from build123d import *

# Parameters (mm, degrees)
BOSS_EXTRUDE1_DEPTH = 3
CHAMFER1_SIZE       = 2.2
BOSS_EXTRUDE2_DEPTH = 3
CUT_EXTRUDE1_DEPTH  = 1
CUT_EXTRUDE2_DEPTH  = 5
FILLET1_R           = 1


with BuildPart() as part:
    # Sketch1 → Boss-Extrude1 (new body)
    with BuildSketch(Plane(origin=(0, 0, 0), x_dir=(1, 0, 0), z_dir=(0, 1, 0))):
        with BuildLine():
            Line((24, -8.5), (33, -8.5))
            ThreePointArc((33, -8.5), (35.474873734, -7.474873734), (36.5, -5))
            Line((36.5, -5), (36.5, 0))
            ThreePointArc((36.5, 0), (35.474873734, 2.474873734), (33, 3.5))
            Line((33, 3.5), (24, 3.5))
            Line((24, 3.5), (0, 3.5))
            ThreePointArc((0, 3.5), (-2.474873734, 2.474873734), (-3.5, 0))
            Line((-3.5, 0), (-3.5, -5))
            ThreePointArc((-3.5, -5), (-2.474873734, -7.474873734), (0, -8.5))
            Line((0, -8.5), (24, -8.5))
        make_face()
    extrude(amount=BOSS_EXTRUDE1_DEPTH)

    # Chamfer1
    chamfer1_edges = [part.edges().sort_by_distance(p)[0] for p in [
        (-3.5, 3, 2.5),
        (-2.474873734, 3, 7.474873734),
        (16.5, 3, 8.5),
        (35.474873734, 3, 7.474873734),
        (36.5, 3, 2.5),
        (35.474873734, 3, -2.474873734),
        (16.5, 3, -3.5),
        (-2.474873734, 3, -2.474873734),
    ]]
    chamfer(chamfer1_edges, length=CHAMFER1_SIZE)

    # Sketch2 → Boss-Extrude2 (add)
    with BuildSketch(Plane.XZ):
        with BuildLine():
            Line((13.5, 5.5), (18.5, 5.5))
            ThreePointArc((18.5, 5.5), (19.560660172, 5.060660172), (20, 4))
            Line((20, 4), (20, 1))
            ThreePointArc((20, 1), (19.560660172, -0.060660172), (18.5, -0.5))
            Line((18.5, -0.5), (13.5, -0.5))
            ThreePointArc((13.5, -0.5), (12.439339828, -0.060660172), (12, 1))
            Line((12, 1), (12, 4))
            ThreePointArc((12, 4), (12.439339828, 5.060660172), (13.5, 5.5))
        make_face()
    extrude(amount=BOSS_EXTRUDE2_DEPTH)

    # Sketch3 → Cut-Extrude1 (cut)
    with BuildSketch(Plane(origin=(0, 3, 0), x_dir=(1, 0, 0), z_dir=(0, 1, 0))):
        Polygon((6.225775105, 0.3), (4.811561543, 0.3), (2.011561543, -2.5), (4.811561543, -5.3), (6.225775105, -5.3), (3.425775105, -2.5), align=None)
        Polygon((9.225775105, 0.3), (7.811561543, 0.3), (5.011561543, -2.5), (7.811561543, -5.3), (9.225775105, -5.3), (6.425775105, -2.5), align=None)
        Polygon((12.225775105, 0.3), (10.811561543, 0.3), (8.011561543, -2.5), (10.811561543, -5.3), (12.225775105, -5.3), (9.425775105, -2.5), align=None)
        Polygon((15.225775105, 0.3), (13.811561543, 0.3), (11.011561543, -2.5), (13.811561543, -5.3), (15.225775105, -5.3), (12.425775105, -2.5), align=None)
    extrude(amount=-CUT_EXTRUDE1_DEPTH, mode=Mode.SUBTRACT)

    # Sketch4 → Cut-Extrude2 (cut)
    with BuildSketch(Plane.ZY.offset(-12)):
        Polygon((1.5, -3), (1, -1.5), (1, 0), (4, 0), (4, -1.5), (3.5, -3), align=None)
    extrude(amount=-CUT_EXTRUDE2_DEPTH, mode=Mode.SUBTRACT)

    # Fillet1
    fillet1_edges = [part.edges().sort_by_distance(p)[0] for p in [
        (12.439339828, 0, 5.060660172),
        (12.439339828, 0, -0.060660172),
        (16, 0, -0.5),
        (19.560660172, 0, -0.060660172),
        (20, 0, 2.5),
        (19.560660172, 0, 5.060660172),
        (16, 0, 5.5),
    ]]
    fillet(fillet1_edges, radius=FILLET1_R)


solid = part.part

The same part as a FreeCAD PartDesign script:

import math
import FreeCAD as App
import Part
import Sketcher
Q = App.Units.Quantity


def edges_at(feature, points):
    """Names of the edges that pass closest to the given points."""
    edges = feature.Shape.Edges
    near = lambda p: min(range(len(edges)), key=lambda i: edges[i].distToShape(Part.Vertex(*p))[0])
    return sorted({f"Edge{near(p) + 1}" for p in points})


def add_polygon(sketch, points):
    """Adds a closed chain of lines whose ends are joined by coincident constraints."""
    first, n = sketch.GeometryCount, len(points)
    for a, b in zip(points, points[1:] + points[:1]):
        sketch.addGeometry(Part.LineSegment(App.Vector(*a, 0), App.Vector(*b, 0)), False)
    for i in range(n):
        sketch.addConstraint(Sketcher.Constraint("Coincident", first + i, 2, first + (i + 1) % n, 1))

doc = App.newDocument("Part")
body = doc.addObject("PartDesign::Body", "Body")

sketch1 = body.newObject("Sketcher::SketchObject", "Sketch")
sketch1.AttachmentSupport = (doc.getObject("XZ_Plane"), [""])
sketch1.MapMode = "FlatFace"
sketch1.addGeometry([
    Part.ArcOfCircle(Part.Circle(App.Vector(33, 5, 0), App.Vector(0, 0, 1), 3.5), math.radians(0), math.radians(90)),
    Part.LineSegment(App.Vector(36.5, 5, 0), App.Vector(36.5, 0, 0)),
    Part.ArcOfCircle(Part.Circle(App.Vector(33, 0, 0), App.Vector(0, 0, 1), 3.5), math.radians(-90), math.radians(0)),
    Part.LineSegment(App.Vector(33, -3.5, 0), App.Vector(0, -3.5, 0)),
    Part.ArcOfCircle(Part.Circle(App.Vector(0, 0, 0), App.Vector(0, 0, 1), 3.5), math.radians(-180), math.radians(-90)),
    Part.LineSegment(App.Vector(-3.5, 0, 0), App.Vector(-3.5, 5, 0)),
    Part.ArcOfCircle(Part.Circle(App.Vector(0, 5, 0), App.Vector(0, 0, 1), 3.5), math.radians(90), math.radians(180)),
    Part.LineSegment(App.Vector(0, 8.5, 0), App.Vector(33, 8.5, 0)),
], False)
sketch1.addConstraint([
    Sketcher.Constraint("Tangent", 0, 1, 1, 1),
    Sketcher.Constraint("Tangent", 1, 2, 2, 2),
    Sketcher.Constraint("Tangent", 2, 1, 3, 1),
    Sketcher.Constraint("Tangent", 3, 2, 4, 2),
    Sketcher.Constraint("Tangent", 4, 1, 5, 1),
    Sketcher.Constraint("Tangent", 5, 2, 6, 2),
    Sketcher.Constraint("Tangent", 6, 1, 7, 1),
    Sketcher.Constraint("Tangent", 7, 2, 0, 2),
    Sketcher.Constraint("Vertical", 1),
    Sketcher.Constraint("Horizontal", 3),
    Sketcher.Constraint("Vertical", 5),
    Sketcher.Constraint("Horizontal", 7),
    Sketcher.Constraint("Coincident", 4, 3, -1, 1),
    Sketcher.Constraint("Equal", 0, 2),
    Sketcher.Constraint("Equal", 2, 4),
    Sketcher.Constraint("Equal", 4, 6),
    Sketcher.Constraint("Radius", 0, Q("3.5 mm")),
    Sketcher.Constraint("DistanceX", 3, 2, 3, 1, Q("33 mm")),
    Sketcher.Constraint("DistanceY", 1, 2, 1, 1, Q("5 mm")),
])
pad1 = body.newObject("PartDesign::Pad", "Pad")
pad1.Profile = sketch1
pad1.Length = 3
pad1.Reversed = True
doc.recompute()

chamfer = body.newObject("PartDesign::Chamfer", "Chamfer")
chamfer.Base = (pad1, edges_at(pad1, [
    (-3.5, 3, 2.5),
    (-2.475, 3, 7.475),
    (16.5, 3, 8.5),
    (35.475, 3, 7.475),
    (36.5, 3, 2.5),
    (35.475, 3, -2.475),
    (16.5, 3, -3.5),
    (-2.475, 3, -2.475),
]))
chamfer.Size = 2.2

sketch2 = body.newObject("Sketcher::SketchObject", "Sketch001")
sketch2.AttachmentSupport = (doc.getObject("XZ_Plane"), [""])
sketch2.MapMode = "FlatFace"
sketch2.addGeometry([
    Part.LineSegment(App.Vector(18.5, 5.5, 0), App.Vector(13.5, 5.5, 0)),
    Part.ArcOfCircle(Part.Circle(App.Vector(13.5, 4, 0), App.Vector(0, 0, 1), 1.5), math.radians(90), math.radians(180)),
    Part.LineSegment(App.Vector(12, 4, 0), App.Vector(12, 1, 0)),
    Part.ArcOfCircle(Part.Circle(App.Vector(13.5, 1, 0), App.Vector(0, 0, 1), 1.5), math.radians(180), math.radians(270)),
    Part.LineSegment(App.Vector(13.5, -0.5, 0), App.Vector(18.5, -0.5, 0)),
    Part.ArcOfCircle(Part.Circle(App.Vector(18.5, 1, 0), App.Vector(0, 0, 1), 1.5), math.radians(-90), math.radians(0)),
    Part.LineSegment(App.Vector(20, 1, 0), App.Vector(20, 4, 0)),
    Part.ArcOfCircle(Part.Circle(App.Vector(18.5, 4, 0), App.Vector(0, 0, 1), 1.5), math.radians(0), math.radians(90)),
], False)
sketch2.addConstraint([
    Sketcher.Constraint("Tangent", 0, 2, 1, 1),
    Sketcher.Constraint("Tangent", 1, 2, 2, 1),
    Sketcher.Constraint("Tangent", 2, 2, 3, 1),
    Sketcher.Constraint("Tangent", 3, 2, 4, 1),
    Sketcher.Constraint("Tangent", 4, 2, 5, 1),
    Sketcher.Constraint("Tangent", 5, 2, 6, 1),
    Sketcher.Constraint("Tangent", 6, 2, 7, 1),
    Sketcher.Constraint("Tangent", 7, 2, 0, 1),
    Sketcher.Constraint("Horizontal", 0),
    Sketcher.Constraint("Vertical", 2),
    Sketcher.Constraint("Horizontal", 4),
    Sketcher.Constraint("Vertical", 6),
    Sketcher.Constraint("Equal", 1, 3),
    Sketcher.Constraint("Equal", 3, 5),
    Sketcher.Constraint("Equal", 5, 7),
    Sketcher.Constraint("Radius", 1, Q("1.5 mm")),
    Sketcher.Constraint("DistanceX", 0, 2, 0, 1, Q("5 mm")),
    Sketcher.Constraint("DistanceY", 2, 2, 2, 1, Q("3 mm")),
    Sketcher.Constraint("DistanceY", -1, 1, 1, 3, Q("4 mm")),
    Sketcher.Constraint("DistanceX", -1, 1, 1, 2, Q("12 mm")),
])
pad2 = body.newObject("PartDesign::Pad", "Pad001")
pad2.Profile = sketch2
pad2.Length = 3

sketch3 = body.newObject("Sketcher::SketchObject", "Sketch002")
sketch3.AttachmentSupport = (doc.getObject("XZ_Plane"), [""])
sketch3.MapMode = "FlatFace"
sketch3.AttachmentOffset = App.Placement(App.Vector(0, 0, -3), App.Rotation())
add_polygon(sketch3, [(6.225775, -0.3), (4.811562, -0.3), (2.011562, 2.5), (4.811562, 5.3), (6.225775, 5.3), (3.425775, 2.5)])
add_polygon(sketch3, [(9.225775, -0.3), (7.811562, -0.3), (5.011562, 2.5), (7.811562, 5.3), (9.225775, 5.3), (6.425775, 2.5)])
add_polygon(sketch3, [(12.225775, -0.3), (10.811562, -0.3), (8.011562, 2.5), (10.811562, 5.3), (12.225775, 5.3), (9.425775, 2.5)])
add_polygon(sketch3, [(15.225775, -0.3), (13.811562, -0.3), (11.011562, 2.5), (13.811562, 5.3), (15.225775, 5.3), (12.425775, 2.5)])
sketch3.addConstraint([
    Sketcher.Constraint("Horizontal", 0),
    Sketcher.Constraint("Horizontal", 3),
    Sketcher.Constraint("Horizontal", 6),
    Sketcher.Constraint("Horizontal", 9),
    Sketcher.Constraint("Horizontal", 12),
    Sketcher.Constraint("Horizontal", 15),
    Sketcher.Constraint("Horizontal", 18),
    Sketcher.Constraint("Horizontal", 21),
    Sketcher.Constraint("Perpendicular", 1, 2),
    Sketcher.Constraint("Parallel", 2, 4),
    Sketcher.Constraint("Perpendicular", 4, 5),
    Sketcher.Constraint("Parallel", 5, 7),
    Sketcher.Constraint("Perpendicular", 7, 8),
    Sketcher.Constraint("Parallel", 8, 10),
    Sketcher.Constraint("Perpendicular", 10, 11),
    Sketcher.Constraint("Parallel", 11, 13),
    Sketcher.Constraint("Perpendicular", 13, 14),
    Sketcher.Constraint("Parallel", 14, 16),
    Sketcher.Constraint("Perpendicular", 16, 17),
    Sketcher.Constraint("Parallel", 17, 19),
    Sketcher.Constraint("Perpendicular", 19, 20),
    Sketcher.Constraint("Parallel", 20, 22),
    Sketcher.Constraint("Perpendicular", 22, 23),
    Sketcher.Constraint("Horizontal", 1, 2, 4, 2),
    Sketcher.Constraint("Horizontal", 5, 2, 6, 2),
    Sketcher.Constraint("Horizontal", 4, 2, 7, 2),
    Sketcher.Constraint("Horizontal", 3, 2, 8, 2),
    Sketcher.Constraint("Horizontal", 7, 2, 10, 2),
    Sketcher.Constraint("Horizontal", 11, 2, 12, 2),
    Sketcher.Constraint("Horizontal", 10, 2, 13, 2),
    Sketcher.Constraint("Horizontal", 9, 2, 14, 2),
    Sketcher.Constraint("Horizontal", 13, 2, 16, 2),
    Sketcher.Constraint("Horizontal", 17, 2, 18, 2),
    Sketcher.Constraint("Horizontal", 16, 2, 19, 2),
    Sketcher.Constraint("Horizontal", 15, 2, 20, 2),
    Sketcher.Constraint("Horizontal", 19, 2, 22, 2),
    Sketcher.Constraint("Vertical", 0, 2, 2, 2),
    Sketcher.Constraint("Equal", 3, 6),
    Sketcher.Constraint("Equal", 9, 12),
    Sketcher.Constraint("Equal", 15, 18),
    Sketcher.Constraint("Equal", 1, 2),
    Sketcher.Constraint("DistanceX", 0, 2, 6, 2, Q("3 mm")),
    Sketcher.Constraint("DistanceX", 6, 2, 12, 2, Q("3 mm")),
    Sketcher.Constraint("DistanceX", 12, 2, 18, 2, Q("3 mm")),
    Sketcher.Constraint("DistanceY", 0, 2, -1, 1, Q("0.3 mm")),
    Sketcher.Constraint("DistanceY", -1, 1, 1, 2, Q("2.5 mm")),
    Sketcher.Constraint("DistanceX", 0, 2, 0, 1, Q("1.414214 mm")),
    Sketcher.Constraint("DistanceX", -1, 1, 0, 2, Q("4.811562 mm")),
])
pocket1 = body.newObject("PartDesign::Pocket", "Pocket")
pocket1.Profile = sketch3
pocket1.Length = 1
pocket1.Reversed = True

sketch4 = body.newObject("Sketcher::SketchObject", "Sketch003")
sketch4.AttachmentSupport = (doc.getObject("YZ_Plane"), [""])
sketch4.MapMode = "FlatFace"
sketch4.AttachmentOffset = App.Placement(App.Vector(0, 0, 12), App.Rotation())
add_polygon(sketch4, [(-1.5, 1), (-3, 1.5), (-3, 3.5), (-1.5, 4), (0, 4), (0, 1)])
sketch4.addConstraint([
    Sketcher.Constraint("Vertical", 1),
    Sketcher.Constraint("Horizontal", 3),
    Sketcher.Constraint("Vertical", 4),
    Sketcher.Constraint("Horizontal", 5),
    Sketcher.Constraint("PointOnObject", 3, 2, -2),
    Sketcher.Constraint("Vertical", 2, 2, 5, 2),
    Sketcher.Constraint("Equal", 0, 2),
    Sketcher.Constraint("DistanceY", 1, 1, 1, 2, Q("2 mm")),
    Sketcher.Constraint("DistanceY", 4, 2, 4, 1, Q("3 mm")),
    Sketcher.Constraint("DistanceX", 3, 1, 3, 2, Q("1.5 mm")),
    Sketcher.Constraint("DistanceX", 0, 2, -1, 1, Q("3 mm")),
    Sketcher.Constraint("DistanceY", -1, 1, 2, 2, Q("4 mm")),
])
pocket2 = body.newObject("PartDesign::Pocket", "Pocket001")
pocket2.Profile = sketch4
pocket2.Length = 5
pocket2.Reversed = True
doc.recompute()

fillet = body.newObject("PartDesign::Fillet", "Fillet")
fillet.Base = (pocket2, edges_at(pocket2, [
    (12.439, 0, 5.061),
    (12.439, 0, -0.061),
    (16, 0, -0.5),
    (19.561, 0, -0.061),
    (20, 0, 2.5),
    (19.561, 0, 5.061),
    (16, 0, 5.5),
]))
fillet.Radius = 1

doc.recompute()
